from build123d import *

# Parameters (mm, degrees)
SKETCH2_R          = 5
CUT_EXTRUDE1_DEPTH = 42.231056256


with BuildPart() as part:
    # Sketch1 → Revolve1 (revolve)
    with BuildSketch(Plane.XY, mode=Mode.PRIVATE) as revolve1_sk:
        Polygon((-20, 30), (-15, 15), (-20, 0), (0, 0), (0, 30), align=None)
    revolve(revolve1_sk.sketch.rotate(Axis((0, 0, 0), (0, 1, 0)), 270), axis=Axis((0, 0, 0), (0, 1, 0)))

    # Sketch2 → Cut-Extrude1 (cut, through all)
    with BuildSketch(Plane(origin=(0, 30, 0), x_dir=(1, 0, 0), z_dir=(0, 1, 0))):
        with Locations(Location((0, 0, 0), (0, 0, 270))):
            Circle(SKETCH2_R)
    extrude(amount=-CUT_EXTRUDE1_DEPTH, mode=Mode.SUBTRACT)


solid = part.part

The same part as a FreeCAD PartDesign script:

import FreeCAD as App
import Part
import Sketcher
from FreeCAD import Vector
Q = App.Units.Quantity

doc = App.newDocument("Part")
body = doc.addObject("PartDesign::Body", "Body")

# Sketch on XY plane
sketch1 = body.newObject("Sketcher::SketchObject", "Sketch")
sketch1.AttachmentSupport = (doc.getObject("XY_Plane"), [""])
sketch1.MapMode = "FlatFace"
sketch1.addGeometry([
    Part.LineSegment(Vector(-20, 30, 0), Vector(-15, 15, 0)),  # 0
    Part.LineSegment(Vector(-15, 15, 0), Vector(-20, 0, 0)),  # 1
    Part.LineSegment(Vector(-20, 0, 0), Vector(0, 0, 0)),  # 2
    Part.LineSegment(Vector(0, 0, 0), Vector(0, 30, 0)),  # 3
    Part.LineSegment(Vector(0, 30, 0), Vector(-20, 30, 0)),  # 4
], False)
sketch1.addConstraint([
    Sketcher.Constraint("Coincident", 0, 2, 1, 1),
    Sketcher.Constraint("Coincident", 1, 2, 2, 1),
    Sketcher.Constraint("Coincident", 2, 2, 3, 1),
    Sketcher.Constraint("Coincident", 3, 2, 4, 1),
    Sketcher.Constraint("Coincident", 4, 2, 0, 1),
    Sketcher.Constraint("Horizontal", 2),
    Sketcher.Constraint("Vertical", 3),
    Sketcher.Constraint("Horizontal", 4),
    Sketcher.Constraint("Coincident", 2, 2, -1, 1),
    Sketcher.Constraint("Vertical", 1, 2, 4, 2),
    Sketcher.Constraint("Equal", 0, 1),
    Sketcher.Constraint("DistanceX", 2, 1, 2, 2, Q("20 mm")),
    Sketcher.Constraint("DistanceY", 3, 1, 3, 2, Q("30 mm")),
    Sketcher.Constraint("DistanceX", 0, 2, -1, 1, Q("15 mm")),
])
revolution = body.newObject("PartDesign::Revolution", "Revolution")
revolution.Profile = sketch1
revolution.ReferenceAxis = (sketch1, ["V_Axis"])
revolution.Angle = 360

# Sketch on XZ plane
sketch2 = body.newObject("Sketcher::SketchObject", "Sketch001")
sketch2.AttachmentSupport = (doc.getObject("XZ_Plane"), [""])
sketch2.MapMode = "FlatFace"
sketch2.AttachmentOffset = App.Placement(Vector(0, 0, -30), App.Rotation())
sketch2.addGeometry(Part.Circle(Vector(0, 0, 0), Vector(0, 0, 1), 5), False)
sketch2.addConstraint([
    Sketcher.Constraint("Coincident", 0, 3, -1, 1),
    Sketcher.Constraint("Diameter", 0, Q("10 mm")),
])
pocket1 = body.newObject("PartDesign::Pocket", "Pocket")
pocket1.Profile = sketch2
pocket1.Type = "ThroughAll"
pocket1.Reversed = True

doc.recompute()
